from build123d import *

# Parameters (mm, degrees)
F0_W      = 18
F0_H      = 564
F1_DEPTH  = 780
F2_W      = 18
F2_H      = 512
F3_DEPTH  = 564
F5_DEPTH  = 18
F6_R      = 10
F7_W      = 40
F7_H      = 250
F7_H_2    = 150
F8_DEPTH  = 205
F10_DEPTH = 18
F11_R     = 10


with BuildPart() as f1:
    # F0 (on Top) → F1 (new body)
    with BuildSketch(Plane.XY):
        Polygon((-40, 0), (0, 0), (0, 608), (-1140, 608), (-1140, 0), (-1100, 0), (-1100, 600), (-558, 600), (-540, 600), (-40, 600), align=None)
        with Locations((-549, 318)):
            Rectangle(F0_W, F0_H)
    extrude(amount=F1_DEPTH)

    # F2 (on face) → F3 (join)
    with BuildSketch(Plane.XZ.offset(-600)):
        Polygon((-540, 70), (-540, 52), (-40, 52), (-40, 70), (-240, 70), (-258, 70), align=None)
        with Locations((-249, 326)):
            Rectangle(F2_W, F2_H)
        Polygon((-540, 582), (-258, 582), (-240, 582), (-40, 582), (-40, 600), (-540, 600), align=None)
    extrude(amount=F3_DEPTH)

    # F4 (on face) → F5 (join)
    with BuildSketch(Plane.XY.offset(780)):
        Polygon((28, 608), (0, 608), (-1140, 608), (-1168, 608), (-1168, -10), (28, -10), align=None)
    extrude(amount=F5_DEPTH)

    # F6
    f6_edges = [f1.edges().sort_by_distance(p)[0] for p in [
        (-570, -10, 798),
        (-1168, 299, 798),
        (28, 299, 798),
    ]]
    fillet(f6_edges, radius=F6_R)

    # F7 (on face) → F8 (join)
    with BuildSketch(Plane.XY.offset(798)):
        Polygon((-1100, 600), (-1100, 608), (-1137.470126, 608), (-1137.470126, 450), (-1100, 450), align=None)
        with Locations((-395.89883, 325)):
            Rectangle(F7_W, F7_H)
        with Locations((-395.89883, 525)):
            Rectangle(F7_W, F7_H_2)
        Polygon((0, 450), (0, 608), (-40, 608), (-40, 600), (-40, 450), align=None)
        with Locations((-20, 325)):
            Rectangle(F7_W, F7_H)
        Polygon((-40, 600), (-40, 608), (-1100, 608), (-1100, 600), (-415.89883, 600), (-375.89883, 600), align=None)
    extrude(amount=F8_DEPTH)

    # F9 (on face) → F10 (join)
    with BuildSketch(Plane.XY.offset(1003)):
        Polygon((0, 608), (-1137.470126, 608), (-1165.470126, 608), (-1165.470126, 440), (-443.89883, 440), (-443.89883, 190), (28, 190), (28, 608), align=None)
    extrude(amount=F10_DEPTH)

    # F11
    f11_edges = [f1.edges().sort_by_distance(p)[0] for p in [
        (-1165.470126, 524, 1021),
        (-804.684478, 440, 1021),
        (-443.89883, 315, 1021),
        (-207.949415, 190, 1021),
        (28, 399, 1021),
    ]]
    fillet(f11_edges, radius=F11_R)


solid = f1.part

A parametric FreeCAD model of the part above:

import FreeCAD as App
import Part
import Sketcher

V = App.Vector


def edges_at(feature, points):
    """Names of the edges that pass closest to the given points."""
    edges = feature.Shape.Edges
    near = lambda p: min(range(len(edges)), key=lambda i: edges[i].distToShape(Part.Vertex(*p))[0])
    return sorted({f"Edge{near(p) + 1}" for p in points})

doc = App.newDocument("Part")
body = doc.addObject("PartDesign::Body", "Body")

sketch1 = body.newObject("Sketcher::SketchObject", "Sketch")
sketch1.AttachmentSupport = (doc.getObject("XY_Plane"), [""])
sketch1.MapMode = "FlatFace"
sketch1.addGeometry(Part.LineSegment(V(-40, 0, 0), V(0, 0, 0)), False)
sketch1.addGeometry(Part.LineSegment(V(0, 0, 0), V(0, 608, 0)), False)
sketch1.addGeometry(Part.LineSegment(V(0, 608, 0), V(-1140, 608, 0)), False)
sketch1.addGeometry(Part.LineSegment(V(-1140, 608, 0), V(-1140, 0, 0)), False)
sketch1.addGeometry(Part.LineSegment(V(-1140, 0, 0), V(-1100, 0, 0)), False)
sketch1.addGeometry(Part.LineSegment(V(-1100, 0, 0), V(-1100, 600, 0)), False)
sketch1.addGeometry(Part.LineSegment(V(-1100, 600, 0), V(-558, 600, 0)), False)
sketch1.addGeometry(Part.LineSegment(V(-558, 600, 0), V(-558, 36, 0)), False)
sketch1.addGeometry(Part.LineSegment(V(-558, 36, 0), V(-540, 36, 0)), False)
sketch1.addGeometry(Part.LineSegment(V(-540, 36, 0), V(-540, 600, 0)), False)
sketch1.addGeometry(Part.LineSegment(V(-540, 600, 0), V(-40, 600, 0)), False)
sketch1.addGeometry(Part.LineSegment(V(-40, 600, 0), V(-40, 0, 0)), False)
sketch1.addConstraint(Sketcher.Constraint("Coincident", 0, 2, 1, 1))
sketch1.addConstraint(Sketcher.Constraint("Coincident", 1, 2, 2, 1))
sketch1.addConstraint(Sketcher.Constraint("Coincident", 2, 2, 3, 1))
sketch1.addConstraint(Sketcher.Constraint("Coincident", 3, 2, 4, 1))
sketch1.addConstraint(Sketcher.Constraint("Coincident", 4, 2, 5, 1))
sketch1.addConstraint(Sketcher.Constraint("Coincident", 5, 2, 6, 1))
sketch1.addConstraint(Sketcher.Constraint("Coincident", 6, 2, 7, 1))
sketch1.addConstraint(Sketcher.Constraint("Coincident", 7, 2, 8, 1))
sketch1.addConstraint(Sketcher.Constraint("Coincident", 8, 2, 9, 1))
sketch1.addConstraint(Sketcher.Constraint("Coincident", 9, 2, 10, 1))
sketch1.addConstraint(Sketcher.Constraint("Coincident", 10, 2, 11, 1))
sketch1.addConstraint(Sketcher.Constraint("Coincident", 11, 2, 0, 1))
sketch1.addConstraint(Sketcher.Constraint("Horizontal", 0))
sketch1.addConstraint(Sketcher.Constraint("Vertical", 1))
sketch1.addConstraint(Sketcher.Constraint("Horizontal", 2))
sketch1.addConstraint(Sketcher.Constraint("Vertical", 3))
sketch1.addConstraint(Sketcher.Constraint("Horizontal", 4))
sketch1.addConstraint(Sketcher.Constraint("Vertical", 5))
sketch1.addConstraint(Sketcher.Constraint("Horizontal", 6))
sketch1.addConstraint(Sketcher.Constraint("Vertical", 7))
sketch1.addConstraint(Sketcher.Constraint("Horizontal", 8))
sketch1.addConstraint(Sketcher.Constraint("Vertical", 9))
sketch1.addConstraint(Sketcher.Constraint("Horizontal", 10))
sketch1.addConstraint(Sketcher.Constraint("Vertical", 11))
sketch1.addConstraint(Sketcher.Constraint("Coincident", 0, 2, -1, 1))
sketch1.addConstraint(Sketcher.Constraint("PointOnObject", 3, 2, -1))
sketch1.addConstraint(Sketcher.Constraint("Horizontal", 6, 2, 9, 2))
sketch1.addConstraint(Sketcher.Constraint("Equal", 0, 4))
sketch1.addConstraint(Sketcher.Constraint("DistanceX", 0, 1, 0, 2, 40.0))
sketch1.addConstraint(Sketcher.Constraint("DistanceX", 2, 2, 2, 1, 1140.0))
sketch1.addConstraint(Sketcher.Constraint("DistanceX", 6, 1, 6, 2, 542.0))
sketch1.addConstraint(Sketcher.Constraint("DistanceX", 8, 1, 8, 2, 18.0))
sketch1.addConstraint(Sketcher.Constraint("DistanceY", 1, 1, 1, 2, 608.0))
sketch1.addConstraint(Sketcher.Constraint("DistanceY", 5, 1, 5, 2, 600.0))
sketch1.addConstraint(Sketcher.Constraint("DistanceY", 7, 2, 7, 1, 564.0))
pad1 = body.newObject("PartDesign::Pad", "Pad")
pad1.Profile = sketch1
pad1.Length = 780

sketch2 = body.newObject("Sketcher::SketchObject", "Sketch001")
sketch2.AttachmentSupport = (doc.getObject("XZ_Plane"), [""])
sketch2.MapMode = "FlatFace"
sketch2.AttachmentOffset = App.Placement(V(0, 0, -600), App.Rotation())
sketch2.addGeometry(Part.LineSegment(V(-540, 70, 0), V(-540, 52, 0)), False)
sketch2.addGeometry(Part.LineSegment(V(-540, 52, 0), V(-40, 52, 0)), False)
sketch2.addGeometry(Part.LineSegment(V(-40, 52, 0), V(-40, 70, 0)), False)
sketch2.addGeometry(Part.LineSegment(V(-40, 70, 0), V(-240, 70, 0)), False)
sketch2.addGeometry(Part.LineSegment(V(-240, 70, 0), V(-240, 582, 0)), False)
sketch2.addGeometry(Part.LineSegment(V(-240, 582, 0), V(-40, 582, 0)), False)
sketch2.addGeometry(Part.LineSegment(V(-40, 582, 0), V(-40, 600, 0)), False)
sketch2.addGeometry(Part.LineSegment(V(-40, 600, 0), V(-540, 600, 0)), False)
sketch2.addGeometry(Part.LineSegment(V(-540, 600, 0), V(-540, 582, 0)), False)
sketch2.addGeometry(Part.LineSegment(V(-540, 582, 0), V(-258, 582, 0)), False)
sketch2.addGeometry(Part.LineSegment(V(-258, 582, 0), V(-258, 70, 0)), False)
sketch2.addGeometry(Part.LineSegment(V(-258, 70, 0), V(-540, 70, 0)), False)
sketch2.addConstraint(Sketcher.Constraint("Coincident", 0, 2, 1, 1))
sketch2.addConstraint(Sketcher.Constraint("Coincident", 1, 2, 2, 1))
sketch2.addConstraint(Sketcher.Constraint("Coincident", 2, 2, 3, 1))
sketch2.addConstraint(Sketcher.Constraint("Coincident", 3, 2, 4, 1))
sketch2.addConstraint(Sketcher.Constraint("Coincident", 4, 2, 5, 1))
sketch2.addConstraint(Sketcher.Constraint("Coincident", 5, 2, 6, 1))
sketch2.addConstraint(Sketcher.Constraint("Coincident", 6, 2, 7, 1))
sketch2.addConstraint(Sketcher.Constraint("Coincident", 7, 2, 8, 1))
sketch2.addConstraint(Sketcher.Constraint("Coincident", 8, 2, 9, 1))
sketch2.addConstraint(Sketcher.Constraint("Coincident", 9, 2, 10, 1))
sketch2.addConstraint(Sketcher.Constraint("Coincident", 10, 2, 11, 1))
sketch2.addConstraint(Sketcher.Constraint("Coincident", 11, 2, 0, 1))
sketch2.addConstraint(Sketcher.Constraint("Vertical", 0))
sketch2.addConstraint(Sketcher.Constraint("Horizontal", 1))
sketch2.addConstraint(Sketcher.Constraint("Vertical", 2))
sketch2.addConstraint(Sketcher.Constraint("Horizontal", 3))
sketch2.addConstraint(Sketcher.Constraint("Vertical", 4))
sketch2.addConstraint(Sketcher.Constraint("Horizontal", 5))
sketch2.addConstraint(Sketcher.Constraint("Vertical", 6))
sketch2.addConstraint(Sketcher.Constraint("Horizontal", 7))
sketch2.addConstraint(Sketcher.Constraint("Vertical", 8))
sketch2.addConstraint(Sketcher.Constraint("Horizontal", 9))
sketch2.addConstraint(Sketcher.Constraint("Vertical", 10))
sketch2.addConstraint(Sketcher.Constraint("Horizontal", 11))
sketch2.addConstraint(Sketcher.Constraint("Horizontal", 5, 2, 8, 2))
sketch2.addConstraint(Sketcher.Constraint("Horizontal", 3, 2, 10, 2))
sketch2.addConstraint(Sketcher.Constraint("Vertical", 2, 2, 5, 2))
sketch2.addConstraint(Sketcher.Constraint("Vertical", 0, 2, 7, 2))
sketch2.addConstraint(Sketcher.Constraint("Equal", 2, 6))
sketch2.addConstraint(Sketcher.Constraint("DistanceX", 1, 1, 1, 2, 500.0))
sketch2.addConstraint(Sketcher.Constraint("DistanceX", 3, 2, 3, 1, 200.0))
sketch2.addConstraint(Sketcher.Constraint("DistanceX", 9, 1, 9, 2, 282.0))
sketch2.addConstraint(Sketcher.Constraint("DistanceY", 0, 2, 0, 1, 18.0))
sketch2.addConstraint(Sketcher.Constraint("DistanceY", 4, 1, 4, 2, 512.0))
sketch2.addConstraint(Sketcher.Constraint("DistanceX", 0, 2, -1, 1, 540.0))
sketch2.addConstraint(Sketcher.Constraint("DistanceY", -1, 1, 0, 2, 52.0))
pad2 = body.newObject("PartDesign::Pad", "Pad001")
pad2.Profile = sketch2
pad2.Length = 564

sketch3 = body.newObject("Sketcher::SketchObject", "Sketch002")
sketch3.AttachmentSupport = (doc.getObject("XY_Plane"), [""])
sketch3.MapMode = "FlatFace"
sketch3.AttachmentOffset = App.Placement(V(0, 0, 780), App.Rotation())
sketch3.addGeometry(Part.LineSegment(V(28, 608, 0), V(-1168, 608, 0)), False)
sketch3.addGeometry(Part.LineSegment(V(-1168, 608, 0), V(-1168, -10, 0)), False)
sketch3.addGeometry(Part.LineSegment(V(-1168, -10, 0), V(28, -10, 0)), False)
sketch3.addGeometry(Part.LineSegment(V(28, -10, 0), V(28, 608, 0)), False)
sketch3.addConstraint(Sketcher.Constraint("Coincident", 0, 2, 1, 1))
sketch3.addConstraint(Sketcher.Constraint("Coincident", 1, 2, 2, 1))
sketch3.addConstraint(Sketcher.Constraint("Coincident", 2, 2, 3, 1))
sketch3.addConstraint(Sketcher.Constraint("Coincident", 3, 2, 0, 1))
sketch3.addConstraint(Sketcher.Constraint("Horizontal", 0))
sketch3.addConstraint(Sketcher.Constraint("Vertical", 1))
sketch3.addConstraint(Sketcher.Constraint("Horizontal", 2))
sketch3.addConstraint(Sketcher.Constraint("Vertical", 3))
sketch3.addConstraint(Sketcher.Constraint("DistanceX", 0, 2, 0, 1, 1196.0))
sketch3.addConstraint(Sketcher.Constraint("DistanceY", 1, 2, 1, 1, 618.0))
sketch3.addConstraint(Sketcher.Constraint("DistanceX", 0, 2, -1, 1, 1168.0))
sketch3.addConstraint(Sketcher.Constraint("DistanceY", -1, 1, 0, 2, 608.0))
pad3 = body.newObject("PartDesign::Pad", "Pad002")
pad3.Profile = sketch3
pad3.Length = 18
doc.recompute()

fillet = body.newObject("PartDesign::Fillet", "Fillet")
fillet.Base = (pad3, edges_at(pad3, [(-570, -10, 798), (-1168, 299, 798), (28, 299, 798)]))
fillet.Radius = 10

sketch4 = body.newObject("Sketcher::SketchObject", "Sketch003")
sketch4.AttachmentSupport = (doc.getObject("XY_Plane"), [""])
sketch4.MapMode = "FlatFace"
sketch4.AttachmentOffset = App.Placement(V(0, 0, 798), App.Rotation())
sketch4.addGeometry(Part.LineSegment(V(-1137, 608, 0), V(-1137, 450, 0)), False)
sketch4.addGeometry(Part.LineSegment(V(-1137, 450, 0), V(-1100, 450, 0)), False)
sketch4.addGeometry(Part.LineSegment(V(-1100, 450, 0), V(-1100, 600, 0)), False)
sketch4.addGeometry(Part.LineSegment(V(-1100, 600, 0), V(-416, 600, 0)), False)
sketch4.addGeometry(Part.LineSegment(V(-416, 600, 0), V(-416, 200, 0)), False)
sketch4.addGeometry(Part.LineSegment(V(-416, 200, 0), V(-376, 200, 0)), False)
sketch4.addGeometry(Part.LineSegment(V(-376, 200, 0), V(-376, 600, 0)), False)
sketch4.addGeometry(Part.LineSegment(V(-376, 600, 0), V(-40, 600, 0)), False)
sketch4.addGeometry(Part.LineSegment(V(-40, 600, 0), V(-40, 200, 0)), False)
sketch4.addGeometry(Part.LineSegment(V(-40, 200, 0), V(0, 200, 0)), False)
sketch4.addGeometry(Part.LineSegment(V(0, 200, 0), V(0, 608, 0)), False)
sketch4.addGeometry(Part.LineSegment(V(0, 608, 0), V(-1137, 608, 0)), False)
sketch4.addConstraint(Sketcher.Constraint("Coincident", 0, 2, 1, 1))
sketch4.addConstraint(Sketcher.Constraint("Coincident", 1, 2, 2, 1))
sketch4.addConstraint(Sketcher.Constraint("Coincident", 2, 2, 3, 1))
sketch4.addConstraint(Sketcher.Constraint("Coincident", 3, 2, 4, 1))
sketch4.addConstraint(Sketcher.Constraint("Coincident", 4, 2, 5, 1))
sketch4.addConstraint(Sketcher.Constraint("Coincident", 5, 2, 6, 1))
sketch4.addConstraint(Sketcher.Constraint("Coincident", 6, 2, 7, 1))
sketch4.addConstraint(Sketcher.Constraint("Coincident", 7, 2, 8, 1))
sketch4.addConstraint(Sketcher.Constraint("Coincident", 8, 2, 9, 1))
sketch4.addConstraint(Sketcher.Constraint("Coincident", 9, 2, 10, 1))
sketch4.addConstraint(Sketcher.Constraint("Coincident", 10, 2, 11, 1))
sketch4.addConstraint(Sketcher.Constraint("Coincident", 11, 2, 0, 1))
sketch4.addConstraint(Sketcher.Constraint("Vertical", 0))
sketch4.addConstraint(Sketcher.Constraint("Horizontal", 1))
sketch4.addConstraint(Sketcher.Constraint("Vertical", 2))
sketch4.addConstraint(Sketcher.Constraint("Horizontal", 3))
sketch4.addConstraint(Sketcher.Constraint("Vertical", 4))
sketch4.addConstraint(Sketcher.Constraint("Horizontal", 5))
sketch4.addConstraint(Sketcher.Constraint("Vertical", 6))
sketch4.addConstraint(Sketcher.Constraint("Horizontal", 7))
sketch4.addConstraint(Sketcher.Constraint("Vertical", 8))
sketch4.addConstraint(Sketcher.Constraint("Horizontal", 9))
sketch4.addConstraint(Sketcher.Constraint("Vertical", 10))
sketch4.addConstraint(Sketcher.Constraint("Horizontal", 11))
sketch4.addConstraint(Sketcher.Constraint("PointOnObject", 9, 2, -2))
sketch4.addConstraint(Sketcher.Constraint("Horizontal", 3, 2, 6, 2))
sketch4.addConstraint(Sketcher.Constraint("Horizontal", 5, 2, 8, 2))
sketch4.addConstraint(Sketcher.Constraint("Equal", 5, 9))
sketch4.addConstraint(Sketcher.Constraint("DistanceX", 5, 1, 5, 2, 40.0))
sketch4.addConstraint(Sketcher.Constraint("DistanceY", 0, 2, 0, 1, 158.0))
sketch4.addConstraint(Sketcher.Constraint("DistanceY", 2, 1, 2, 2, 150.0))
sketch4.addConstraint(Sketcher.Constraint("DistanceY", 4, 2, 4, 1, 400.0))
sketch4.addConstraint(Sketcher.Constraint("DistanceY", -1, 1, 0, 2, 450.0))
sketch4.addConstraint(Sketcher.Constraint("DistanceX", 1, 2, -1, 1, 1100.0))
sketch4.addConstraint(Sketcher.Constraint("DistanceX", 3, 1, 3, 2, 684.10117))
sketch4.addConstraint(Sketcher.Constraint("DistanceX", 1, 1, 1, 2, 37.470126))
pad4 = body.newObject("PartDesign::Pad", "Pad003")
pad4.Profile = sketch4
pad4.Length = 205

sketch5 = body.newObject("Sketcher::SketchObject", "Sketch004")
sketch5.AttachmentSupport = (doc.getObject("XY_Plane"), [""])
sketch5.MapMode = "FlatFace"
sketch5.AttachmentOffset = App.Placement(V(0, 0, 1003), App.Rotation())
sketch5.addGeometry(Part.LineSegment(V(-1165, 608, 0), V(-1165, 440, 0)), False)
sketch5.addGeometry(Part.LineSegment(V(-1165, 440, 0), V(-444, 440, 0)), False)
sketch5.addGeometry(Part.LineSegment(V(-444, 440, 0), V(-444, 190, 0)), False)
sketch5.addGeometry(Part.LineSegment(V(-444, 190, 0), V(28, 190, 0)), False)
sketch5.addGeometry(Part.LineSegment(V(28, 190, 0), V(28, 608, 0)), False)
sketch5.addGeometry(Part.LineSegment(V(28, 608, 0), V(-1165, 608, 0)), False)
sketch5.addConstraint(Sketcher.Constraint("Coincident", 0, 2, 1, 1))
sketch5.addConstraint(Sketcher.Constraint("Coincident", 1, 2, 2, 1))
sketch5.addConstraint(Sketcher.Constraint("Coincident", 2, 2, 3, 1))
sketch5.addConstraint(Sketcher.Constraint("Coincident", 3, 2, 4, 1))
sketch5.addConstraint(Sketcher.Constraint("Coincident", 4, 2, 5, 1))
sketch5.addConstraint(Sketcher.Constraint("Coincident", 5, 2, 0, 1))
sketch5.addConstraint(Sketcher.Constraint("Vertical", 0))
sketch5.addConstraint(Sketcher.Constraint("Horizontal", 1))
sketch5.addConstraint(Sketcher.Constraint("Vertical", 2))
sketch5.addConstraint(Sketcher.Constraint("Horizontal", 3))
sketch5.addConstraint(Sketcher.Constraint("Vertical", 4))
sketch5.addConstraint(Sketcher.Constraint("Horizontal", 5))
sketch5.addConstraint(Sketcher.Constraint("DistanceY", 0, 2, 0, 1, 168.0))
sketch5.addConstraint(Sketcher.Constraint("DistanceY", 2, 2, 2, 1, 250.0))
sketch5.addConstraint(Sketcher.Constraint("DistanceY", -1, 1, 0, 2, 440.0))
sketch5.addConstraint(Sketcher.Constraint("DistanceX", -1, 1, 3, 2, 28.0))
sketch5.addConstraint(Sketcher.Constraint("DistanceX", 3, 1, 3, 2, 471.89883))
sketch5.addConstraint(Sketcher.Constraint("DistanceX", 1, 1, 1, 2, 721.571296))
pad5 = body.newObject("PartDesign::Pad", "Pad004")
pad5.Profile = sketch5
pad5.Length = 18
doc.recompute()

fillet2 = body.newObject("PartDesign::Fillet", "Fillet001")
fillet2.Base = (pad5, edges_at(pad5, [
    (-1165.47, 524, 1021),
    (-804.684, 440, 1021),
    (-443.899, 315, 1021),
    (-207.949, 190, 1021),
    (28, 399, 1021),
]))
fillet2.Radius = 10

doc.recompute()
